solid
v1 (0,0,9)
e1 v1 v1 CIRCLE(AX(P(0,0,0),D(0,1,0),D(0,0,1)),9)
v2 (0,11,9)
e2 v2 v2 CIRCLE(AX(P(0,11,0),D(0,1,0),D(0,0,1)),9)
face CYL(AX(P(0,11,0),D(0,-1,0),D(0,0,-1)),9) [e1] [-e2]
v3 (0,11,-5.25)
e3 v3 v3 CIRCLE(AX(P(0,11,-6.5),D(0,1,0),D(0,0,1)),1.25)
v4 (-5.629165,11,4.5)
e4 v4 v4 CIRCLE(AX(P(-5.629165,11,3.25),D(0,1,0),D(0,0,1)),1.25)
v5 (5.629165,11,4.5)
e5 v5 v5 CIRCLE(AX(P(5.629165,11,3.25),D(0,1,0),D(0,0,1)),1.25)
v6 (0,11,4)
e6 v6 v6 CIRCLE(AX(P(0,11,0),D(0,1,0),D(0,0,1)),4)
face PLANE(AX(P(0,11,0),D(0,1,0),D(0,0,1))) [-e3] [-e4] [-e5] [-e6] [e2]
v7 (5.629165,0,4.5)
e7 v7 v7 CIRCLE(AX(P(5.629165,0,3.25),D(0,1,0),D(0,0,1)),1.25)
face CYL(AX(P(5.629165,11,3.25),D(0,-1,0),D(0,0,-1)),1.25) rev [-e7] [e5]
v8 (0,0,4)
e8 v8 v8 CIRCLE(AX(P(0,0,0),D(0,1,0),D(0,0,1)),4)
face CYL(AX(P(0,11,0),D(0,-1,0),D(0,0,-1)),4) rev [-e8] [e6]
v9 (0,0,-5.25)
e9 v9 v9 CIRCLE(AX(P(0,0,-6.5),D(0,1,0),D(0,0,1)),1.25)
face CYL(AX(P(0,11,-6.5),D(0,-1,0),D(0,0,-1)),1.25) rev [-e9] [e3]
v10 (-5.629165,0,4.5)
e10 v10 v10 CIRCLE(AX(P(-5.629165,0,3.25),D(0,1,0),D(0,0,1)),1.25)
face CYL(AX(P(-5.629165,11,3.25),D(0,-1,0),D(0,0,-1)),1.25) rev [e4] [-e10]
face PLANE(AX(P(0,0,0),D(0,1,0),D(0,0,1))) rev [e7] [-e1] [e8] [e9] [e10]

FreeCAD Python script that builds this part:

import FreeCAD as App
import Part
import Sketcher
from FreeCAD import Vector

doc = App.newDocument("Part")
params = doc.addObject("Spreadsheet::Sheet", "Params")
for row, (alias, value) in enumerate([
    ("sketch1_diameter", "18 mm"),
    ("sketch1_diameter2", "8 mm"),
    ("sketch1_diameter3", "2.5 mm"),
    ("pad1_length", "11 mm"),
], start=1):
    params.set(f"A{row}", alias)
    params.set(f"B{row}", "=" + value)
    params.setAlias(f"B{row}", alias)

body = doc.addObject("PartDesign::Body", "Body")

sketch1 = body.newObject("Sketcher::SketchObject", "Sketch")
sketch1.AttachmentSupport = (doc.getObject("XZ_Plane"), [""])
sketch1.MapMode = "FlatFace"
sketch1.addGeometry([
    Part.Circle(Vector(0, 0, 0), Vector(0, 0, 1), 9),
    Part.Circle(Vector(0, -6.5, 0), Vector(0, 0, 1), 1.25),
    Part.Circle(Vector(-5.629165, 3.25, 0), Vector(0, 0, 1), 1.25),
    Part.Circle(Vector(0, 0, 0), Vector(0, 0, 1), 4),
    Part.Circle(Vector(5.629165, 3.25, 0), Vector(0, 0, 1), 1.25),
], False)
sketch1.addConstraint([
    Sketcher.Constraint("Coincident", 0, 3, -1, 1),
    Sketcher.Constraint("Coincident", 3, 3, -1, 1),
    Sketcher.Constraint("Equal", 1, 2),
    Sketcher.Constraint("Equal", 2, 4),
    Sketcher.Constraint("Symmetric", 2, 3, 4, 3, -2),
    Sketcher.Constraint("PointOnObject", 1, 3, -2),
    Sketcher.Constraint("Diameter", 0, 18.0),
    Sketcher.Constraint("Diameter", 3, 8.0),
    Sketcher.Constraint("Diameter", 1, 2.5),
    Sketcher.Constraint("DistanceY", 1, 3, -1, 1, 6.5),
    Sketcher.Constraint("DistanceY", -1, 1, 2, 3, 3.25),
    Sketcher.Constraint("DistanceX", 2, 3, 4, 3, 11.25833),
])
sketch1.setExpression("Constraints[6]", "Params.sketch1_diameter")
sketch1.setExpression("Constraints[7]", "Params.sketch1_diameter2")
sketch1.setExpression("Constraints[8]", "Params.sketch1_diameter3")
pad1 = body.newObject("PartDesign::Pad", "Pad")
pad1.Profile = sketch1
pad1.setExpression("Length", "Params.pad1_length")
pad1.Reversed = True

doc.recompute()
